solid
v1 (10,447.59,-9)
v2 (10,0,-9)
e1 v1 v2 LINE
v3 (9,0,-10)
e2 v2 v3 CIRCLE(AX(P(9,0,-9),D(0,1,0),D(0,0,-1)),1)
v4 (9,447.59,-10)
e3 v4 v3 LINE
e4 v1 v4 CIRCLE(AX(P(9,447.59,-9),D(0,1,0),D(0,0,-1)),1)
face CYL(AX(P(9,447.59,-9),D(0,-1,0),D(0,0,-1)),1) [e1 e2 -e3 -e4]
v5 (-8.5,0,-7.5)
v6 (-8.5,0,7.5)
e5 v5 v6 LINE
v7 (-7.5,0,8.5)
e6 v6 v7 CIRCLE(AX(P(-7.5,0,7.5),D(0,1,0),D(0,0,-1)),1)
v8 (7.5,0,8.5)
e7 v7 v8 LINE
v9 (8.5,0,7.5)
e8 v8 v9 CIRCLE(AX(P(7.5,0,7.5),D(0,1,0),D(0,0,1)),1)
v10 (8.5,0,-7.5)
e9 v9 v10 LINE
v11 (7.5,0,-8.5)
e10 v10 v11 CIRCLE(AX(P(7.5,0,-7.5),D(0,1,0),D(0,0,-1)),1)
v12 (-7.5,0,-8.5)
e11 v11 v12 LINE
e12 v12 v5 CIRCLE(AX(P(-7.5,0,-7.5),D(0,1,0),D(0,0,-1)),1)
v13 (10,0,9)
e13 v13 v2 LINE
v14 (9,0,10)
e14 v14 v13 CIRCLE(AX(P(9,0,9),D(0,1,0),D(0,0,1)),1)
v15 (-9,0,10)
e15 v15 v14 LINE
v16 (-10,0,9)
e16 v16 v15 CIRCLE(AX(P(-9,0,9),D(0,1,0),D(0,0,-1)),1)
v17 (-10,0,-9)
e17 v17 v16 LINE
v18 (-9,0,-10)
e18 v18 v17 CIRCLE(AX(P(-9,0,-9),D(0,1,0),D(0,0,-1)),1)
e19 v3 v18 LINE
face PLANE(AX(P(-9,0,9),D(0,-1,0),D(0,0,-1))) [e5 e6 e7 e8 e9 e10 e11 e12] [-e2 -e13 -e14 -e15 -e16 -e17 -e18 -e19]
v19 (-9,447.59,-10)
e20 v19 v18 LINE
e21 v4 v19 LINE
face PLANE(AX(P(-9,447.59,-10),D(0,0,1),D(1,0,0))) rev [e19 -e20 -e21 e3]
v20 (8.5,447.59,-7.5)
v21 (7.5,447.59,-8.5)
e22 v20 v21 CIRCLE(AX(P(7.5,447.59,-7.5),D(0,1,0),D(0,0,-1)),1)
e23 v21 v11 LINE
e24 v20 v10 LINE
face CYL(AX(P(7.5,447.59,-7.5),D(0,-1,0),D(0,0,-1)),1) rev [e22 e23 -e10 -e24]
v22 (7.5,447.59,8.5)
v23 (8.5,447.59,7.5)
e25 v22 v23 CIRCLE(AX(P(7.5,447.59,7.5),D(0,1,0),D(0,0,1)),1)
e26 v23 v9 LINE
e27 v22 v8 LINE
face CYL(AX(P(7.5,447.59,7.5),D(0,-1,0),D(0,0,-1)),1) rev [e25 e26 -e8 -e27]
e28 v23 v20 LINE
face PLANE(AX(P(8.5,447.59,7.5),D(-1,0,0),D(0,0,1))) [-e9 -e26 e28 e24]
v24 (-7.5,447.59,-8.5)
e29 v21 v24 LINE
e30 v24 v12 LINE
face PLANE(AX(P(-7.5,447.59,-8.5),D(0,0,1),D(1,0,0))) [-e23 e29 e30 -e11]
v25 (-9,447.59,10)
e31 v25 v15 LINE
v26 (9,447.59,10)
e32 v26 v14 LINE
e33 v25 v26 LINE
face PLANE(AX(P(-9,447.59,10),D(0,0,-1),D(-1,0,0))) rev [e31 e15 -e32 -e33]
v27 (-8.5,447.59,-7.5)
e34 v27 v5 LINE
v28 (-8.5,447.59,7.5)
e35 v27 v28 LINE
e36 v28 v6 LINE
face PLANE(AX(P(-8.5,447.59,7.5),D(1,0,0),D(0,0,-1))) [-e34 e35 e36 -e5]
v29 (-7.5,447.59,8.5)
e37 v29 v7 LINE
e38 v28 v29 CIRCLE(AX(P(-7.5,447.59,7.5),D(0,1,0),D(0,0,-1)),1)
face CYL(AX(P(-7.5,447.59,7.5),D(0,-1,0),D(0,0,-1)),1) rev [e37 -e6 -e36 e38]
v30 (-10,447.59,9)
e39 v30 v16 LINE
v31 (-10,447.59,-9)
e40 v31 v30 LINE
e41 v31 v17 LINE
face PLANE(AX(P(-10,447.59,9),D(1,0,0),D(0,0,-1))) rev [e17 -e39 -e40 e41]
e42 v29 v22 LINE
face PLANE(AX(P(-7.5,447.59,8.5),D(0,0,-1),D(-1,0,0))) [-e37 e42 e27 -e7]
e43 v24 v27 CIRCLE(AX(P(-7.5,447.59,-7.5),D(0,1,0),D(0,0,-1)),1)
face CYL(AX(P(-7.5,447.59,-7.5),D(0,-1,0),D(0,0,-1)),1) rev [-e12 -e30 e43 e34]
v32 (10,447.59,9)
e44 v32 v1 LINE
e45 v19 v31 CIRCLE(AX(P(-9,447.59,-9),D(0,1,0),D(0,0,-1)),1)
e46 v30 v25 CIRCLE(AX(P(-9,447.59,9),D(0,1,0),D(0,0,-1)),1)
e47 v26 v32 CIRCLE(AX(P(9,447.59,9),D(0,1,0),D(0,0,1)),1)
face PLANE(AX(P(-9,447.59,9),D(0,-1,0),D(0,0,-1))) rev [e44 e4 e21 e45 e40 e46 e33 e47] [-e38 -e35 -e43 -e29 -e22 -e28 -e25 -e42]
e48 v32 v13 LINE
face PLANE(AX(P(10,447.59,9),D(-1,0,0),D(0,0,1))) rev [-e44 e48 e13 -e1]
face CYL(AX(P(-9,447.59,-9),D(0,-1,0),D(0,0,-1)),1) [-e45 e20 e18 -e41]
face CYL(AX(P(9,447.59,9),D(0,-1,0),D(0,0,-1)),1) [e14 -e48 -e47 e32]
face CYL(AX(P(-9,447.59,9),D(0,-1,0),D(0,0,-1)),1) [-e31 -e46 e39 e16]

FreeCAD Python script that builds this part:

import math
import FreeCAD as App
import Part
import Sketcher
Q = App.Units.Quantity

doc = App.newDocument("Part")
body = doc.addObject("PartDesign::Body", "Body")

# Sketch on XZ plane
sketch1 = body.newObject("Sketcher::SketchObject", "Sketch")
sketch1.AttachmentSupport = (doc.getObject("XZ_Plane"), [""])
sketch1.MapMode = "FlatFace"
sketch1.addGeometry(Part.LineSegment(App.Vector(-9, 10, 0), App.Vector(9, 10, 0)), False)
sketch1.addGeometry(Part.ArcOfCircle(Part.Circle(App.Vector(9, 9, 0), App.Vector(0, 0, 1), 1), math.radians(0), math.radians(90)), False)
sketch1.addGeometry(Part.LineSegment(App.Vector(10, 9, 0), App.Vector(10, -9, 0)), False)
sketch1.addGeometry(Part.ArcOfCircle(Part.Circle(App.Vector(9, -9, 0), App.Vector(0, 0, 1), 1), math.radians(-90), math.radians(0)), False)
sketch1.addGeometry(Part.LineSegment(App.Vector(9, -10, 0), App.Vector(-9, -10, 0)), False)
sketch1.addGeometry(Part.ArcOfCircle(Part.Circle(App.Vector(-9, -9, 0), App.Vector(0, 0, 1), 1), math.radians(-180), math.radians(-90)), False)
sketch1.addGeometry(Part.LineSegment(App.Vector(-10, -9, 0), App.Vector(-10, 9, 0)), False)
sketch1.addGeometry(Part.ArcOfCircle(Part.Circle(App.Vector(-9, 9, 0), App.Vector(0, 0, 1), 1), math.radians(90), math.radians(180)), False)
sketch1.addGeometry(Part.LineSegment(App.Vector(7.5, 8.5, 0), App.Vector(-7.5, 8.5, 0)), False)
sketch1.addGeometry(Part.ArcOfCircle(Part.Circle(App.Vector(-7.5, 7.5, 0), App.Vector(0, 0, 1), 1), math.radians(90), math.radians(180)), False)
sketch1.addGeometry(Part.LineSegment(App.Vector(-8.5, 7.5, 0), App.Vector(-8.5, -7.5, 0)), False)
sketch1.addGeometry(Part.ArcOfCircle(Part.Circle(App.Vector(-7.5, -7.5, 0), App.Vector(0, 0, 1), 1), math.radians(-180), math.radians(-90)), False)
sketch1.addGeometry(Part.LineSegment(App.Vector(-7.5, -8.5, 0), App.Vector(7.5, -8.5, 0)), False)
sketch1.addGeometry(Part.ArcOfCircle(Part.Circle(App.Vector(7.5, -7.5, 0), App.Vector(0, 0, 1), 1), math.radians(-90), math.radians(0)), False)
sketch1.addGeometry(Part.LineSegment(App.Vector(8.5, -7.5, 0), App.Vector(8.5, 7.5, 0)), False)
sketch1.addGeometry(Part.ArcOfCircle(Part.Circle(App.Vector(7.5, 7.5, 0), App.Vector(0, 0, 1), 1), math.radians(0), math.radians(90)), False)
sketch1.addConstraint(Sketcher.Constraint("Tangent", 0, 2, 1, 2))
sketch1.addConstraint(Sketcher.Constraint("Tangent", 1, 1, 2, 1))
sketch1.addConstraint(Sketcher.Constraint("Tangent", 2, 2, 3, 2))
sketch1.addConstraint(Sketcher.Constraint("Tangent", 3, 1, 4, 1))
sketch1.addConstraint(Sketcher.Constraint("Tangent", 4, 2, 5, 2))
sketch1.addConstraint(Sketcher.Constraint("Tangent", 5, 1, 6, 1))
sketch1.addConstraint(Sketcher.Constraint("Tangent", 6, 2, 7, 2))
sketch1.addConstraint(Sketcher.Constraint("Tangent", 7, 1, 0, 1))
sketch1.addConstraint(Sketcher.Constraint("Tangent", 8, 2, 9, 1))
sketch1.addConstraint(Sketcher.Constraint("Tangent", 9, 2, 10, 1))
sketch1.addConstraint(Sketcher.Constraint("Tangent", 10, 2, 11, 1))
sketch1.addConstraint(Sketcher.Constraint("Tangent", 11, 2, 12, 1))
sketch1.addConstraint(Sketcher.Constraint("Tangent", 12, 2, 13, 1))
sketch1.addConstraint(Sketcher.Constraint("Tangent", 13, 2, 14, 1))
sketch1.addConstraint(Sketcher.Constraint("Tangent", 14, 2, 15, 1))
sketch1.addConstraint(Sketcher.Constraint("Tangent", 15, 2, 8, 1))
sketch1.addConstraint(Sketcher.Constraint("Horizontal", 0))
sketch1.addConstraint(Sketcher.Constraint("Vertical", 2))
sketch1.addConstraint(Sketcher.Constraint("Horizontal", 4))
sketch1.addConstraint(Sketcher.Constraint("Vertical", 6))
sketch1.addConstraint(Sketcher.Constraint("Horizontal", 8))
sketch1.addConstraint(Sketcher.Constraint("Vertical", 10))
sketch1.addConstraint(Sketcher.Constraint("Horizontal", 12))
sketch1.addConstraint(Sketcher.Constraint("Vertical", 14))
sketch1.addConstraint(Sketcher.Constraint("Equal", 1, 3))
sketch1.addConstraint(Sketcher.Constraint("Equal", 3, 5))
sketch1.addConstraint(Sketcher.Constraint("Equal", 5, 7))
sketch1.addConstraint(Sketcher.Constraint("Equal", 7, 9))
sketch1.addConstraint(Sketcher.Constraint("Equal", 9, 11))
sketch1.addConstraint(Sketcher.Constraint("Equal", 11, 13))
sketch1.addConstraint(Sketcher.Constraint("Equal", 13, 15))
sketch1.addConstraint(Sketcher.Constraint("Symmetric", 1, 3, 5, 3, -1, 1))
sketch1.addConstraint(Sketcher.Constraint("Symmetric", 9, 3, 13, 3, -1, 1))
sketch1.addConstraint(Sketcher.Constraint("Equal", 4, 2))
sketch1.addConstraint(Sketcher.Constraint("Equal", 12, 10))
sketch1.addConstraint(Sketcher.Constraint("Radius", 1, Q("1 mm")))
sketch1.addConstraint(Sketcher.Constraint("DistanceX", 0, 1, 0, 2, Q("18 mm")))
sketch1.addConstraint(Sketcher.Constraint("DistanceX", 8, 2, 8, 1, Q("15 mm")))
pad1 = body.newObject("PartDesign::Pad", "Pad")
pad1.Profile = sketch1
pad1.Length = 447.59
pad1.Reversed = True

doc.recompute()
